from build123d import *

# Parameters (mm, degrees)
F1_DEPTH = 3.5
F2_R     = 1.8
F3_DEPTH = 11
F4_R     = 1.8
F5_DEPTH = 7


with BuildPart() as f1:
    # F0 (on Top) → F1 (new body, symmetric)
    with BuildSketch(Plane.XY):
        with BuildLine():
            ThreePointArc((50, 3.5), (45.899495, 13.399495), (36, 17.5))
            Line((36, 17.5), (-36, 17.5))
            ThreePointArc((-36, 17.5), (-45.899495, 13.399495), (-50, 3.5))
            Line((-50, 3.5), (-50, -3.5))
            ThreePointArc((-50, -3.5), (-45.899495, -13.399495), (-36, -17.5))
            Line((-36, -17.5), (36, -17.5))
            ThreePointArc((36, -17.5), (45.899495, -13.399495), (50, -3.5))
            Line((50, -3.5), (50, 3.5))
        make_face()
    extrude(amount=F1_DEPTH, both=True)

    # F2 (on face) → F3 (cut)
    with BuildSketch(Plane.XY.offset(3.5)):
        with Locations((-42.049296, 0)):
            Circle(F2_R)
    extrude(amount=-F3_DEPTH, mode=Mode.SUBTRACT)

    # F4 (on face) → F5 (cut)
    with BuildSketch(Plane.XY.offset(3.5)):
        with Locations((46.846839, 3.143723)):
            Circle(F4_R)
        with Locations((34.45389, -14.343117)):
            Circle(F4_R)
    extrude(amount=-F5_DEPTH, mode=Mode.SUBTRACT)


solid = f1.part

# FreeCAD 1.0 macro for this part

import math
import FreeCAD as App
import Part
import Sketcher
from FreeCAD import Vector

doc = App.newDocument("Part")
body = doc.addObject("PartDesign::Body", "Body")

# Sketch on XY plane
sketch1 = body.newObject("Sketcher::SketchObject", "Sketch")
sketch1.AttachmentSupport = (doc.getObject("XY_Plane"), [""])
sketch1.MapMode = "FlatFace"
sketch1.addGeometry(Part.ArcOfCircle(Part.Circle(Vector(36, 3.5, 0), Vector(0, 0, 1), 14), math.radians(-0.000001), math.radians(90.000001)), False)
sketch1.addGeometry(Part.LineSegment(Vector(36, 17.5, 0), Vector(-36, 17.5, 0)), False)
sketch1.addGeometry(Part.ArcOfCircle(Part.Circle(Vector(-36, 3.5, 0), Vector(0, 0, 1), 14), math.radians(89.999999), math.radians(180.000001)), False)
sketch1.addGeometry(Part.LineSegment(Vector(-50, 3.5, 0), Vector(-50, -3.5, 0)), False)
sketch1.addGeometry(Part.ArcOfCircle(Part.Circle(Vector(-36, -3.5, 0), Vector(0, 0, 1), 14), math.radians(179.999999), math.radians(270.000001)), False)
sketch1.addGeometry(Part.LineSegment(Vector(-36, -17.5, 0), Vector(36, -17.5, 0)), False)
sketch1.addGeometry(Part.ArcOfCircle(Part.Circle(Vector(36, -3.5, 0), Vector(0, 0, 1), 14), math.radians(-90.000001), math.radians(0.000001)), False)
sketch1.addGeometry(Part.LineSegment(Vector(50, -3.5, 0), Vector(50, 3.5, 0)), False)
sketch1.addConstraint(Sketcher.Constraint("Tangent", 0, 2, 1, 1))
sketch1.addConstraint(Sketcher.Constraint("Tangent", 1, 2, 2, 1))
sketch1.addConstraint(Sketcher.Constraint("Tangent", 2, 2, 3, 1))
sketch1.addConstraint(Sketcher.Constraint("Tangent", 3, 2, 4, 1))
sketch1.addConstraint(Sketcher.Constraint("Tangent", 4, 2, 5, 1))
sketch1.addConstraint(Sketcher.Constraint("Tangent", 5, 2, 6, 1))
sketch1.addConstraint(Sketcher.Constraint("Tangent", 6, 2, 7, 1))
sketch1.addConstraint(Sketcher.Constraint("Tangent", 7, 2, 0, 1))
sketch1.addConstraint(Sketcher.Constraint("Horizontal", 1))
sketch1.addConstraint(Sketcher.Constraint("Vertical", 3))
sketch1.addConstraint(Sketcher.Constraint("Horizontal", 5))
sketch1.addConstraint(Sketcher.Constraint("Vertical", 7))
sketch1.addConstraint(Sketcher.Constraint("Equal", 0, 2))
sketch1.addConstraint(Sketcher.Constraint("Equal", 2, 4))
sketch1.addConstraint(Sketcher.Constraint("Equal", 4, 6))
sketch1.addConstraint(Sketcher.Constraint("Symmetric", 0, 3, 4, 3, -1, 1))
sketch1.addConstraint(Sketcher.Constraint("Radius", 0, 14.0))
sketch1.addConstraint(Sketcher.Constraint("DistanceX", 1, 2, 1, 1, 72.0))
sketch1.addConstraint(Sketcher.Constraint("DistanceY", 3, 2, 3, 1, 7.0))
pad1 = body.newObject("PartDesign::Pad", "Pad")
pad1.Profile = sketch1
pad1.Length = 7
pad1.Midplane = True

# Sketch on XY plane
sketch2 = body.newObject("Sketcher::SketchObject", "Sketch001")
sketch2.AttachmentSupport = (doc.getObject("XY_Plane"), [""])
sketch2.MapMode = "FlatFace"
sketch2.AttachmentOffset = App.Placement(Vector(0, 0, 3.5), App.Rotation())
sketch2.addGeometry(Part.Circle(Vector(-42.049296, 0, 0), Vector(0, 0, 1), 1.8), False)
sketch2.addConstraint(Sketcher.Constraint("PointOnObject", 0, 3, -1))
sketch2.addConstraint(Sketcher.Constraint("Diameter", 0, 3.6))
sketch2.addConstraint(Sketcher.Constraint("DistanceX", 0, 3, -1, 1, 42.049296))
pocket1 = body.newObject("PartDesign::Pocket", "Pocket")
pocket1.Profile = sketch2
pocket1.Length = 11

# Sketch on XY plane
sketch3 = body.newObject("Sketcher::SketchObject", "Sketch002")
sketch3.AttachmentSupport = (doc.getObject("XY_Plane"), [""])
sketch3.MapMode = "FlatFace"
sketch3.AttachmentOffset = App.Placement(Vector(0, 0, 3.5), App.Rotation())
sketch3.addGeometry(Part.Circle(Vector(46.846839, 3.143723, 0), Vector(0, 0, 1), 1.8), False)
sketch3.addGeometry(Part.Circle(Vector(34.45389, -14.343117, 0), Vector(0, 0, 1), 1.8), False)
sketch3.addConstraint(Sketcher.Constraint("Equal", 0, 1))
sketch3.addConstraint(Sketcher.Constraint("Diameter", 0, 3.6))
sketch3.addConstraint(Sketcher.Constraint("DistanceX", -1, 1, 0, 3, 46.846839))
sketch3.addConstraint(Sketcher.Constraint("DistanceX", -1, 1, 1, 3, 34.45389))
sketch3.addConstraint(Sketcher.Constraint("DistanceY", 1, 3, 0, 3, 17.48684))
sketch3.addConstraint(Sketcher.Constraint("DistanceY", -1, 1, 0, 3, 3.143723))
pocket2 = body.newObject("PartDesign::Pocket", "Pocket001")
pocket2.Profile = sketch3
pocket2.Length = 7

doc.recompute()
